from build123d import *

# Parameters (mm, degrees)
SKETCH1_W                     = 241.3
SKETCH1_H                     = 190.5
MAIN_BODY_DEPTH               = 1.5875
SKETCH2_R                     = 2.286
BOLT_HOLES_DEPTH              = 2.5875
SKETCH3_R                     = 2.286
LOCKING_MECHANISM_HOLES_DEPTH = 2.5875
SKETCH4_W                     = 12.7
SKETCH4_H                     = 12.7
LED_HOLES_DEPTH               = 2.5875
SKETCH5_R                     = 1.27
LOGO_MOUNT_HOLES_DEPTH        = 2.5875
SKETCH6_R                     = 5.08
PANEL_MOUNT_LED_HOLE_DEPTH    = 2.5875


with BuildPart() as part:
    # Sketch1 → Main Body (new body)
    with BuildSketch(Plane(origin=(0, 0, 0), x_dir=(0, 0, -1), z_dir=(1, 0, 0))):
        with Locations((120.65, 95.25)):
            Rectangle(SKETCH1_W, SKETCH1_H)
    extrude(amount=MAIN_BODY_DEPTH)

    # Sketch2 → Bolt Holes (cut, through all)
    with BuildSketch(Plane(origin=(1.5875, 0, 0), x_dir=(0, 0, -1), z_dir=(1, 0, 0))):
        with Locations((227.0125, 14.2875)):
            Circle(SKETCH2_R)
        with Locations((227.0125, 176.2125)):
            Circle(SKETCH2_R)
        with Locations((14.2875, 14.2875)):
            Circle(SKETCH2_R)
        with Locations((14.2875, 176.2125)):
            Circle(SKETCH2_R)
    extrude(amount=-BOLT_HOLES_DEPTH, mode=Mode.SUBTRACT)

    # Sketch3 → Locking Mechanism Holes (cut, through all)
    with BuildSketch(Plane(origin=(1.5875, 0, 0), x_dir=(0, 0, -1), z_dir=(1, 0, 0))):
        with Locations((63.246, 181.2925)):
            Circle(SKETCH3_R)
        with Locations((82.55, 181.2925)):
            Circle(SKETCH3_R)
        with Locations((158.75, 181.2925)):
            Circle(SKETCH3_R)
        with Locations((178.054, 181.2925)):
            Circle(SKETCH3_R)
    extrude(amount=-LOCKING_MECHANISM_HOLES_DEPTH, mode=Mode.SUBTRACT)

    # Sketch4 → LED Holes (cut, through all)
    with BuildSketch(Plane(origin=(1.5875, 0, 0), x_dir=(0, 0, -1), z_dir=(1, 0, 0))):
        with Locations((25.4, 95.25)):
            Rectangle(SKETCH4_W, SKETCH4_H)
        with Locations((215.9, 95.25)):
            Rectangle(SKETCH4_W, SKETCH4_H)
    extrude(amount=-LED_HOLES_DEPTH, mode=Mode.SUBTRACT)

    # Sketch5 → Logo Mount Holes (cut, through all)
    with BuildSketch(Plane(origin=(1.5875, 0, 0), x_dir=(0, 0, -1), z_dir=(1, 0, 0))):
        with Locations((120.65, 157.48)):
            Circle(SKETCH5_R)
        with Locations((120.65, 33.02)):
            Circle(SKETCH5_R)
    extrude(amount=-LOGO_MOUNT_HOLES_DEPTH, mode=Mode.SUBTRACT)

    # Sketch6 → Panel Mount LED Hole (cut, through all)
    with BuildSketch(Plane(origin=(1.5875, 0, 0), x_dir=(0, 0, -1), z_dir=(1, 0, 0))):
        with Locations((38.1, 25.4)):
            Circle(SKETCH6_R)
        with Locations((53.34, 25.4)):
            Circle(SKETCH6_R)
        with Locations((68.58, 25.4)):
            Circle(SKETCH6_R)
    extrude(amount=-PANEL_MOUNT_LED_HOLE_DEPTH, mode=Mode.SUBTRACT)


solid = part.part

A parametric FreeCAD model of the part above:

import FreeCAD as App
import Part
import Sketcher
Q = App.Units.Quantity


def add_polygon(sketch, points):
    """Adds a closed chain of lines whose ends are joined by coincident constraints."""
    first, n = sketch.GeometryCount, len(points)
    for a, b in zip(points, points[1:] + points[:1]):
        sketch.addGeometry(Part.LineSegment(App.Vector(*a, 0), App.Vector(*b, 0)), False)
    for i in range(n):
        sketch.addConstraint(Sketcher.Constraint("Coincident", first + i, 2, first + (i + 1) % n, 1))

doc = App.newDocument("Part")
body = doc.addObject("PartDesign::Body", "Body")

sketch1 = doc.addObject("Sketcher::SketchObject", "Sketch")
body.addObject(sketch1)
sketch1.AttachmentSupport = (doc.YZ_Plane, [""])
sketch1.MapMode = "FlatFace"
add_polygon(sketch1, [(190, 0), (0, 0), (0, -241), (190, -241)])
sketch1.addConstraint([
    Sketcher.Constraint("Horizontal", 0),
    Sketcher.Constraint("Vertical", 1),
    Sketcher.Constraint("Horizontal", 2),
    Sketcher.Constraint("Vertical", 3),
    Sketcher.Constraint("Coincident", 0, 2, -1, 1),
    Sketcher.Constraint("DistanceX", 0, 2, 0, 1, Q("7.5 in")),
    Sketcher.Constraint("DistanceY", 1, 2, 1, 1, Q("9.5 in")),
])
pad1 = doc.addObject("PartDesign::Pad", "Pad")
body.addObject(pad1)
pad1.Profile = sketch1
pad1.Length = Q("0.0625 in")

sketch2 = doc.addObject("Sketcher::SketchObject", "Sketch001")
body.addObject(sketch2)
sketch2.AttachmentSupport = (doc.YZ_Plane, [""])
sketch2.MapMode = "FlatFace"
sketch2.AttachmentOffset = App.Placement(App.Vector(0, 0, 0.0625 * 25.4), App.Rotation())
sketch2.addGeometry([
    Part.Circle(App.Vector(14.3, -227, 0), App.Vector(0, 0, 1), 2.3),
    Part.Circle(App.Vector(176.2, -227, 0), App.Vector(0, 0, 1), 2.3),
    Part.Circle(App.Vector(14.3, -14.3, 0), App.Vector(0, 0, 1), 2.3),
    Part.Circle(App.Vector(176.2, -14.3, 0), App.Vector(0, 0, 1), 2.3),
], False)
sketch2.addConstraint([
    Sketcher.Constraint("Equal", 0, 1),
    Sketcher.Constraint("Equal", 1, 2),
    Sketcher.Constraint("Equal", 2, 3),
    Sketcher.Constraint("Horizontal", 0, 3, 1, 3),
    Sketcher.Constraint("Horizontal", 2, 3, 3, 3),
    Sketcher.Constraint("Vertical", 0, 3, 2, 3),
    Sketcher.Constraint("Vertical", 1, 3, 3, 3),
    Sketcher.Constraint("Diameter", 0, Q("0.18 in")),
    Sketcher.Constraint("DistanceX", -1, 1, 0, 3, Q("0.5625 in")),
    Sketcher.Constraint("DistanceY", 0, 3, -1, 1, Q("8.9375 in")),
    Sketcher.Constraint("DistanceX", -1, 1, 1, 3, Q("6.9375 in")),
    Sketcher.Constraint("DistanceY", 2, 3, -1, 1, Q("0.5625 in")),
])
pocket1 = doc.addObject("PartDesign::Pocket", "Pocket")
body.addObject(pocket1)
pocket1.Profile = sketch2
pocket1.Type = "ThroughAll"

sketch3 = doc.addObject("Sketcher::SketchObject", "Sketch002")
body.addObject(sketch3)
sketch3.AttachmentSupport = (doc.YZ_Plane, [""])
sketch3.MapMode = "FlatFace"
sketch3.AttachmentOffset = App.Placement(App.Vector(0, 0, 0.0625 * 25.4), App.Rotation())
sketch3.addGeometry([
    Part.Circle(App.Vector(181.3, -63.2, 0), App.Vector(0, 0, 1), 2.3),
    Part.Circle(App.Vector(181.3, -82.5, 0), App.Vector(0, 0, 1), 2.3),
    Part.Circle(App.Vector(181.3, -158.8, 0), App.Vector(0, 0, 1), 2.3),
    Part.Circle(App.Vector(181.3, -178.1, 0), App.Vector(0, 0, 1), 2.3),
], False)
sketch3.addConstraint([
    Sketcher.Constraint("Equal", 0, 1),
    Sketcher.Constraint("Equal", 1, 2),
    Sketcher.Constraint("Equal", 2, 3),
    Sketcher.Constraint("Vertical", 0, 3, 1, 3),
    Sketcher.Constraint("Vertical", 1, 3, 2, 3),
    Sketcher.Constraint("Vertical", 2, 3, 3, 3),
    Sketcher.Constraint("Diameter", 0, Q("0.18 in")),
    Sketcher.Constraint("DistanceY", 2, 3, 1, 3, Q("3 in")),
    Sketcher.Constraint("DistanceY", 0, 3, -1, 1, Q("2.49 in")),
    Sketcher.Constraint("DistanceY", 1, 3, -1, 1, Q("3.25 in")),
    Sketcher.Constraint("DistanceY", 3, 3, -1, 1, Q("7.01 in")),
    Sketcher.Constraint("DistanceX", -1, 1, 0, 3, Q("7.1375 in")),
])
pocket2 = doc.addObject("PartDesign::Pocket", "Pocket001")
body.addObject(pocket2)
pocket2.Profile = sketch3
pocket2.Type = "ThroughAll"

sketch4 = doc.addObject("Sketcher::SketchObject", "Sketch003")
body.addObject(sketch4)
sketch4.AttachmentSupport = (doc.YZ_Plane, [""])
sketch4.MapMode = "FlatFace"
sketch4.AttachmentOffset = App.Placement(App.Vector(0, 0, 0.0625 * 25.4), App.Rotation())
add_polygon(sketch4, [(102, -19), (89, -19), (89, -32), (102, -32)])
add_polygon(sketch4, [(102, -210), (89, -210), (89, -222), (102, -222)])
sketch4.addConstraint([
    Sketcher.Constraint("Horizontal", 0),
    Sketcher.Constraint("Vertical", 1),
    Sketcher.Constraint("Horizontal", 2),
    Sketcher.Constraint("Vertical", 3),
    Sketcher.Constraint("Horizontal", 4),
    Sketcher.Constraint("Vertical", 5),
    Sketcher.Constraint("Horizontal", 6),
    Sketcher.Constraint("Vertical", 7),
    Sketcher.Constraint("Vertical", 1, 2, 4, 2),
    Sketcher.Constraint("Vertical", 3, 2, 6, 2),
    Sketcher.Constraint("Equal", 6, 1),
    Sketcher.Constraint("Equal", 3, 5),
    Sketcher.Constraint("DistanceX", 0, 2, 0, 1, Q("0.5 in")),
    Sketcher.Constraint("DistanceX", -1, 1, 2, 2, Q("4 in")),
    Sketcher.Constraint("DistanceY", 4, 2, 1, 2, Q("7 in")),
    Sketcher.Constraint("DistanceY", 0, 2, -1, 1, Q("0.75 in")),
])
pocket3 = doc.addObject("PartDesign::Pocket", "Pocket002")
body.addObject(pocket3)
pocket3.Profile = sketch4
pocket3.Type = "ThroughAll"

sketch5 = doc.addObject("Sketcher::SketchObject", "Sketch004")
body.addObject(sketch5)
sketch5.AttachmentSupport = (doc.YZ_Plane, [""])
sketch5.MapMode = "FlatFace"
sketch5.AttachmentOffset = App.Placement(App.Vector(0, 0, 0.0625 * 25.4), App.Rotation())
sketch5.addGeometry([
    Part.Circle(App.Vector(157.5, -120.7, 0), App.Vector(0, 0, 1), 1.3),
    Part.Circle(App.Vector(33, -120.7, 0), App.Vector(0, 0, 1), 1.3),
], False)
sketch5.addConstraint([
    Sketcher.Constraint("Equal", 0, 1),
    Sketcher.Constraint("Horizontal", 0, 3, 1, 3),
    Sketcher.Constraint("Diameter", 0, Q("0.1 in")),
    Sketcher.Constraint("DistanceX", -1, 1, 0, 3, Q("6.2 in")),
    Sketcher.Constraint("DistanceX", -1, 1, 1, 3, Q("1.3 in")),
    Sketcher.Constraint("DistanceY", 0, 3, -1, 1, Q("4.75 in")),
])
pocket4 = doc.addObject("PartDesign::Pocket", "Pocket003")
body.addObject(pocket4)
pocket4.Profile = sketch5
pocket4.Type = "ThroughAll"

sketch6 = doc.addObject("Sketcher::SketchObject", "Sketch005")
body.addObject(sketch6)
sketch6.AttachmentSupport = (doc.YZ_Plane, [""])
sketch6.MapMode = "FlatFace"
sketch6.AttachmentOffset = App.Placement(App.Vector(0, 0, 0.0625 * 25.4), App.Rotation())
sketch6.addGeometry([
    Part.Circle(App.Vector(25, -38, 0), App.Vector(0, 0, 1), 5),
    Part.Circle(App.Vector(25, -53, 0), App.Vector(0, 0, 1), 5),
    Part.Circle(App.Vector(25, -69, 0), App.Vector(0, 0, 1), 5),
], False)
sketch6.addConstraint([
    Sketcher.Constraint("Equal", 0, 1),
    Sketcher.Constraint("Equal", 1, 2),
    Sketcher.Constraint("Vertical", 0, 3, 1, 3),
    Sketcher.Constraint("Vertical", 1, 3, 2, 3),
    Sketcher.Constraint("Diameter", 0, Q("0.4 in")),
    Sketcher.Constraint("DistanceX", -1, 1, 0, 3, Q("1 in")),
    Sketcher.Constraint("DistanceY", 0, 3, -1, 1, Q("1.5 in")),
    Sketcher.Constraint("DistanceY", 1, 3, -1, 1, Q("2.1 in")),
    Sketcher.Constraint("DistanceY", 2, 3, -1, 1, Q("2.7 in")),
])
pocket5 = doc.addObject("PartDesign::Pocket", "Pocket004")
body.addObject(pocket5)
pocket5.Profile = sketch6
pocket5.Type = "ThroughAll"

doc.recompute()
